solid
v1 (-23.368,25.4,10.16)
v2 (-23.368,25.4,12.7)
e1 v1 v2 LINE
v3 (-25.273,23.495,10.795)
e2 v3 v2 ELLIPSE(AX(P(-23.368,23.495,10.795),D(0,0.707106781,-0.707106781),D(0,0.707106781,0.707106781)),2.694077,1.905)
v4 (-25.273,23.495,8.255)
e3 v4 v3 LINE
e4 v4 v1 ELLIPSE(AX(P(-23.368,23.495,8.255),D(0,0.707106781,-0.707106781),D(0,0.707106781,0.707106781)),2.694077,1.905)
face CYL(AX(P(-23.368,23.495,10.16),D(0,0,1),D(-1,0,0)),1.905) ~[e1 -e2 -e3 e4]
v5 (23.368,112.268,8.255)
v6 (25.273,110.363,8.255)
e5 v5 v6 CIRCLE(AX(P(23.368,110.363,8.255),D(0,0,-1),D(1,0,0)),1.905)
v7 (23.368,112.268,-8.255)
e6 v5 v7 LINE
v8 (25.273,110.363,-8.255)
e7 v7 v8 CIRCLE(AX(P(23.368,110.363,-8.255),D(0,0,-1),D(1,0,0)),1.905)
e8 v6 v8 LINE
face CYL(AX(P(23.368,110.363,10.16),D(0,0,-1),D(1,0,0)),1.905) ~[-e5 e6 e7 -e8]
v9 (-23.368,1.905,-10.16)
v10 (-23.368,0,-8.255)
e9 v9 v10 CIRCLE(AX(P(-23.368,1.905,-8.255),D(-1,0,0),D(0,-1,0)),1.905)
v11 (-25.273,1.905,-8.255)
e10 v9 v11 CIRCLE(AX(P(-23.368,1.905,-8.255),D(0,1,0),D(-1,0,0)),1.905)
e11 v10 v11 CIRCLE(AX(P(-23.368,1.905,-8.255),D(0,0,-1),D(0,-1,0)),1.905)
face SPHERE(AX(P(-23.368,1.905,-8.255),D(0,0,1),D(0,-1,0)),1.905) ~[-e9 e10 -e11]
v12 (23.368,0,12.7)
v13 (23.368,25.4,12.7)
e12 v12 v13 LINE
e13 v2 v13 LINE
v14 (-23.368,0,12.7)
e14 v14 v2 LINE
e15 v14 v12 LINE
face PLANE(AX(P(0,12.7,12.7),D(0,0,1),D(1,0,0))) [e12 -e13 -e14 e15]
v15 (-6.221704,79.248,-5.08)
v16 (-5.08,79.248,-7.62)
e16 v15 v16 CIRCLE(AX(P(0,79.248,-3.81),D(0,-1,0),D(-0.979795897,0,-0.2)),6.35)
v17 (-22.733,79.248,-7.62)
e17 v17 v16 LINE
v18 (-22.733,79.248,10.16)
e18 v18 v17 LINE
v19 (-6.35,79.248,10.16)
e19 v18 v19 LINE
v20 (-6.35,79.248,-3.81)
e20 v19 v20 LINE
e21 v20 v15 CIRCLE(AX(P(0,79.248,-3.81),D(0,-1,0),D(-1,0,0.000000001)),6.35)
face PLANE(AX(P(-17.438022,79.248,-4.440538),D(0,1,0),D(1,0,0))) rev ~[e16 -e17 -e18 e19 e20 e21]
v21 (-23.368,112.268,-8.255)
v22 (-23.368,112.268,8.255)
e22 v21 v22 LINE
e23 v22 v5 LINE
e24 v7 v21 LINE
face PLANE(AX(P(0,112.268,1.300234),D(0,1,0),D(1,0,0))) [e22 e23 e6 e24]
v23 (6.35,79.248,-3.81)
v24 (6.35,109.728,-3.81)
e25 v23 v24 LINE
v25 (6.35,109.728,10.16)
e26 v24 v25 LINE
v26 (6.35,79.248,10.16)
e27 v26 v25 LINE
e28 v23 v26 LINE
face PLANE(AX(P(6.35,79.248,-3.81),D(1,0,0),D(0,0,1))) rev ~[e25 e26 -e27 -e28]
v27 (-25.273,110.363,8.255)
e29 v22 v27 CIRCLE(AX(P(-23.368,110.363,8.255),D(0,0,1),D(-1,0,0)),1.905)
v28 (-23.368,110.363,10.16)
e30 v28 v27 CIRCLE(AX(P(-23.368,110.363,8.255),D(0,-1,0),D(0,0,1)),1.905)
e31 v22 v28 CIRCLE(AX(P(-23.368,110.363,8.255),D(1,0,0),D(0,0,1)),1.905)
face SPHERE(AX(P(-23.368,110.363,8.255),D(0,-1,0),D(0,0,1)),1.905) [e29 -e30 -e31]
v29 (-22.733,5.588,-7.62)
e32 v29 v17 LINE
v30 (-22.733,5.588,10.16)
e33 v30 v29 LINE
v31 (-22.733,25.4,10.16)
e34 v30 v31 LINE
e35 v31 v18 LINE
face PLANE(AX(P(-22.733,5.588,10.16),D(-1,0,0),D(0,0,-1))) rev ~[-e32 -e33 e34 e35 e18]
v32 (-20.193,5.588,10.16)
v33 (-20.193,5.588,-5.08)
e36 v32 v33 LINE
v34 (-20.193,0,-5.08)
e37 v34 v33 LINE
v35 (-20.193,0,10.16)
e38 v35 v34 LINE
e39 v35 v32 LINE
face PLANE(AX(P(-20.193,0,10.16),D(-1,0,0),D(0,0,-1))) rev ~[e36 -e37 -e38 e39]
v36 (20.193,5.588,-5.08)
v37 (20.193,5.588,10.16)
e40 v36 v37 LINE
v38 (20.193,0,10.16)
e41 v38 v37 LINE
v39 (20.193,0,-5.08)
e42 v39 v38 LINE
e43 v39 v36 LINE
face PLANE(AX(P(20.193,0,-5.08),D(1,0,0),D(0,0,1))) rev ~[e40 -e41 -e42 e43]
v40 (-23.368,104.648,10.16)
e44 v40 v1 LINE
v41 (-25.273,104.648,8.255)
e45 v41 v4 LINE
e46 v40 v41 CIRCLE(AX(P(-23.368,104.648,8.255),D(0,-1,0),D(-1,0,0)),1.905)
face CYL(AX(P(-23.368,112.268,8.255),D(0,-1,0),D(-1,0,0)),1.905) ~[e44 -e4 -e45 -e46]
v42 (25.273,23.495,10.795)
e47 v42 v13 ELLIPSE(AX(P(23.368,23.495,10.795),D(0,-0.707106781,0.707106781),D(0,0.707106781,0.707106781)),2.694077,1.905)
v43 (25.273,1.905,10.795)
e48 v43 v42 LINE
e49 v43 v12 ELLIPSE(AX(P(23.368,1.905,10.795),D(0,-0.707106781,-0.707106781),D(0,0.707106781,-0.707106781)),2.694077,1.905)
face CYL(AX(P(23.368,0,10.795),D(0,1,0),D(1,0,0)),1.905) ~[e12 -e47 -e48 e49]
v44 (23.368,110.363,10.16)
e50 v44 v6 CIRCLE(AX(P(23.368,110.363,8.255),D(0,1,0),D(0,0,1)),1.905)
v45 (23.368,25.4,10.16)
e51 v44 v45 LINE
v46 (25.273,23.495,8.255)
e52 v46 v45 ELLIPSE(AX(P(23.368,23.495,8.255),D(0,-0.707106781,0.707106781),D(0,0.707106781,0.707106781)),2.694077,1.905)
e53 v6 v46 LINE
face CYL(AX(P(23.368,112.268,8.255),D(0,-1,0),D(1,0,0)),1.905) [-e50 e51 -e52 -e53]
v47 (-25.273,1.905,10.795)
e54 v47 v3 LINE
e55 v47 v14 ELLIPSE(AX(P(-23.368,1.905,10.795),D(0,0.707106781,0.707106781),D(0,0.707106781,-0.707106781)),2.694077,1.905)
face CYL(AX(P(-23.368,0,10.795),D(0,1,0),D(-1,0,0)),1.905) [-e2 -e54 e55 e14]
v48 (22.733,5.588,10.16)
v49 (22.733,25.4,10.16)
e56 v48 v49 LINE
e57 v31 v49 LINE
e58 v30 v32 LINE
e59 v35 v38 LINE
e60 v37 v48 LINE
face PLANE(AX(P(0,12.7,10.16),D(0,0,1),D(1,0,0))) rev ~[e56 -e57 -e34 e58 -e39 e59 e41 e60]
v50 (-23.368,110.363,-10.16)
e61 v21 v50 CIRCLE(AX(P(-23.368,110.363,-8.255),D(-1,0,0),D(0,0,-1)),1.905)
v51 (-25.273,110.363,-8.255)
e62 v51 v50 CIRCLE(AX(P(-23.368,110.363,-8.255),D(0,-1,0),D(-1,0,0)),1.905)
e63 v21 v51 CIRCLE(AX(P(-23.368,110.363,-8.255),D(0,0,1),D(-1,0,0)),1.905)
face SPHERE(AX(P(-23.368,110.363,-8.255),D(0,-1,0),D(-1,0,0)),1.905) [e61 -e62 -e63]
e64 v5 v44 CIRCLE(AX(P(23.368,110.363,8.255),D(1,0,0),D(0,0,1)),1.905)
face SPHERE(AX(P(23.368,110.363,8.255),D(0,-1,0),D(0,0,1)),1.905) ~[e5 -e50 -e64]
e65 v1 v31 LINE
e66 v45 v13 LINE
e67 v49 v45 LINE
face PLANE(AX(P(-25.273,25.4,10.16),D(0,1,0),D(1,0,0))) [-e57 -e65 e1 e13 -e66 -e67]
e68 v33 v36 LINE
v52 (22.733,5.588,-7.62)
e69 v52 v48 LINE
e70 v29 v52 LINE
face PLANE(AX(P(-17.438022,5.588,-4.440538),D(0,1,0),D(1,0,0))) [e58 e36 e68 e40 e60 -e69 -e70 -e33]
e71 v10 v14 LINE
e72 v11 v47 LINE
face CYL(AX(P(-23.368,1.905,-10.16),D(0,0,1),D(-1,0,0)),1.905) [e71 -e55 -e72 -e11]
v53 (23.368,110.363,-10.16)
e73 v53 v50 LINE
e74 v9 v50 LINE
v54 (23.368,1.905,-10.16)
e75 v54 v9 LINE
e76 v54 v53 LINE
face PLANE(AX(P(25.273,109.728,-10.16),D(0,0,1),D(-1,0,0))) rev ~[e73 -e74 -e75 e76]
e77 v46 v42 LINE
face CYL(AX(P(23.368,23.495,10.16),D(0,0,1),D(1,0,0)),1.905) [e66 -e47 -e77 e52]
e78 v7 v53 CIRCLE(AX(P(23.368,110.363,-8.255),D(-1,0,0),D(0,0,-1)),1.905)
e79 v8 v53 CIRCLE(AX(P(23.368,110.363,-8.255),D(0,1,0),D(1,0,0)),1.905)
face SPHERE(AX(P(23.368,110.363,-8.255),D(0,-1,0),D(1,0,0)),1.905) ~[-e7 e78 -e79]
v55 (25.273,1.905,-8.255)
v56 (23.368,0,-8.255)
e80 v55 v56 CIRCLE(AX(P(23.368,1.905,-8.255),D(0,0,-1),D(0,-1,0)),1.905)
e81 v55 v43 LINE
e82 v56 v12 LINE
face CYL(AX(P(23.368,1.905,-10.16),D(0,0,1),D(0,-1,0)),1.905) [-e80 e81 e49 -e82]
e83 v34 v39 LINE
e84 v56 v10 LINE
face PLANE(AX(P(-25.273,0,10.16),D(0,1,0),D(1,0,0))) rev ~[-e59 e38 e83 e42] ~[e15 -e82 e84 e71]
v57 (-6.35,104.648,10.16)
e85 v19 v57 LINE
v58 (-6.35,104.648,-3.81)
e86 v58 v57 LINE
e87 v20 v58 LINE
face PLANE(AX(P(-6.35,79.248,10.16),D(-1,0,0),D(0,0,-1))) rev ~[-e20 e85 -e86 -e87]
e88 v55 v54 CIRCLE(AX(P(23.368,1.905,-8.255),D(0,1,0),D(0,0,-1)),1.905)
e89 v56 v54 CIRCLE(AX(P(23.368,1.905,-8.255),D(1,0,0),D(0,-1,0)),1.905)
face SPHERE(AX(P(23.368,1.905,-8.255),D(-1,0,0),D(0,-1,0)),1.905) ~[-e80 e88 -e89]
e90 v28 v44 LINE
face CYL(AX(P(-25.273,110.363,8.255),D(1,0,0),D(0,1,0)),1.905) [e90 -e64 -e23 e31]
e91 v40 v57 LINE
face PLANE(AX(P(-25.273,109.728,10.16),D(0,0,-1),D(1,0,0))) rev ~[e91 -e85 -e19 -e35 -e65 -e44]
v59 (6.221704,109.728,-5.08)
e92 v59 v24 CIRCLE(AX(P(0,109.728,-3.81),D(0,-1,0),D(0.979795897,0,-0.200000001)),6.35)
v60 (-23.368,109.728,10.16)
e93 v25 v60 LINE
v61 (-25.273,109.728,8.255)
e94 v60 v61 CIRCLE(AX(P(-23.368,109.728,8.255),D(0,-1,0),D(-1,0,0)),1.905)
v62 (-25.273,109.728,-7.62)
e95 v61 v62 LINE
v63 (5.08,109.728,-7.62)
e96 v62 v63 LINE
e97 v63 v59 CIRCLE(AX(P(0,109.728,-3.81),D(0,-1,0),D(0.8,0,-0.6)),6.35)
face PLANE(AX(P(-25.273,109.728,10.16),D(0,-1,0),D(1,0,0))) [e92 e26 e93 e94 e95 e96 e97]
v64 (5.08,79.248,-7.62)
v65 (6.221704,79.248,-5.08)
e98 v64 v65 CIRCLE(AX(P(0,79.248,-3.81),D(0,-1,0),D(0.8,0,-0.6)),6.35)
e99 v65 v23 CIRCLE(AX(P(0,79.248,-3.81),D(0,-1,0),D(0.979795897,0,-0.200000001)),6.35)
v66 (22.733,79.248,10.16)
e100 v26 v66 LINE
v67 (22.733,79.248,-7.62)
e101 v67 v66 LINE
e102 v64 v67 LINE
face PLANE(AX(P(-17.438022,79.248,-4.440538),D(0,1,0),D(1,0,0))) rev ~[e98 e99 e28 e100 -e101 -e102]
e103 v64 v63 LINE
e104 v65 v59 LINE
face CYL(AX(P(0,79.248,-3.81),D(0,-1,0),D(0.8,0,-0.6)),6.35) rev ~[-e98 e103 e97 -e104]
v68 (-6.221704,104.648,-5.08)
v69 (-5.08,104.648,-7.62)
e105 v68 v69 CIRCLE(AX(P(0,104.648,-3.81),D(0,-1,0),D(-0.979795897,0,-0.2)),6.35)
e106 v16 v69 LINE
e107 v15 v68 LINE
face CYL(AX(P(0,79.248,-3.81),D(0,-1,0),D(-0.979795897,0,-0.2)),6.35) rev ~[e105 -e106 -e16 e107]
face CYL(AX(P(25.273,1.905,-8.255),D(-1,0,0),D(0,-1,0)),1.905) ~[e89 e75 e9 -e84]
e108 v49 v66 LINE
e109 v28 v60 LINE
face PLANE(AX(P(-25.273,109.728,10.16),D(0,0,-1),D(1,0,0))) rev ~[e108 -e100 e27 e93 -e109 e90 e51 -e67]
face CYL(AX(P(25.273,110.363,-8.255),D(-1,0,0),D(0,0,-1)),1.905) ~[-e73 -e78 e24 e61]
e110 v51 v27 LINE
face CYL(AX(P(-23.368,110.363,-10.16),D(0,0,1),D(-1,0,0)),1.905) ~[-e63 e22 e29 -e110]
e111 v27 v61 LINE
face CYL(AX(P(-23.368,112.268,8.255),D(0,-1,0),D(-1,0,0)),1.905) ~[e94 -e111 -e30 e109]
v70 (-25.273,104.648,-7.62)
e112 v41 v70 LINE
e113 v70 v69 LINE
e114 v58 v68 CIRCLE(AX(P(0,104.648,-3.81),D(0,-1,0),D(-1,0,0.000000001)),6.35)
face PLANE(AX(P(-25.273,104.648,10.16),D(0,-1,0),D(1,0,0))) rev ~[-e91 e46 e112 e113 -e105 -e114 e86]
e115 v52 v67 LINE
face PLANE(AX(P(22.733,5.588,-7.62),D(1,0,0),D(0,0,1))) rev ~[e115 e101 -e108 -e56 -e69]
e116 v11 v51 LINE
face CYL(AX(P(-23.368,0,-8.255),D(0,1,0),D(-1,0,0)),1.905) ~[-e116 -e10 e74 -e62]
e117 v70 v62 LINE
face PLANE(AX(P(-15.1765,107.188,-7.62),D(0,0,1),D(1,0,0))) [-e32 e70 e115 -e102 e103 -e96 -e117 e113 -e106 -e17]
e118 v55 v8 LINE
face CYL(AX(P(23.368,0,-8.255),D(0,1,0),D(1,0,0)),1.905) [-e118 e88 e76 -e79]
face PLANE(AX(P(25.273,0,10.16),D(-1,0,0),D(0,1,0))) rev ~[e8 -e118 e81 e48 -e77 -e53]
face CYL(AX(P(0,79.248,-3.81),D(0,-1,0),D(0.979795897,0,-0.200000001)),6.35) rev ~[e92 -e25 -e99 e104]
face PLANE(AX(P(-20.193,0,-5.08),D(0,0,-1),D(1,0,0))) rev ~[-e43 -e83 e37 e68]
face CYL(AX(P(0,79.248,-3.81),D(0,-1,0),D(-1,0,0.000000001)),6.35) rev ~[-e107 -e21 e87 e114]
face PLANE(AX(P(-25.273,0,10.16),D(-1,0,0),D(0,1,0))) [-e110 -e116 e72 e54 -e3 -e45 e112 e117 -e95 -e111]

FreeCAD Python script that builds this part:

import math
import FreeCAD as App
import Part
import Sketcher
from FreeCAD import Vector
Q = App.Units.Quantity


def edges_at(feature, points):
    """Names of the edges that pass closest to the given points."""
    edges = feature.Shape.Edges
    near = lambda p: min(range(len(edges)), key=lambda i: edges[i].distToShape(Part.Vertex(*p))[0])
    return sorted({f"Edge{near(p) + 1}" for p in points})


def add_polygon(sketch, points):
    """Adds a closed chain of lines whose ends are joined by coincident constraints."""
    first, n = sketch.GeometryCount, len(points)
    for a, b in zip(points, points[1:] + points[:1]):
        sketch.addGeometry(Part.LineSegment(App.Vector(*a, 0), App.Vector(*b, 0)), False)
    for i in range(n):
        sketch.addConstraint(Sketcher.Constraint("Coincident", first + i, 2, first + (i + 1) % n, 1))

doc = App.newDocument("Part")
body = doc.addObject("PartDesign::Body", "Body")

# Sketch on XZ plane
sketch1 = body.newObject("Sketcher::SketchObject", "Sketch")
sketch1.AttachmentSupport = (doc.getObject("XZ_Plane"), [""])
sketch1.MapMode = "FlatFace"
add_polygon(sketch1, [(-20, -5), (20, -5), (20, 10), (25, 10), (25, -10), (-25, -10), (-25, 10), (-20, 10)])  # lines 0-7
sketch1.addConstraint([
    Sketcher.Constraint("Horizontal", 0),
    Sketcher.Constraint("Vertical", 1),
    Sketcher.Constraint("Horizontal", 2),
    Sketcher.Constraint("Vertical", 3),
    Sketcher.Constraint("Horizontal", 4),
    Sketcher.Constraint("Vertical", 5),
    Sketcher.Constraint("Horizontal", 6),
    Sketcher.Constraint("Vertical", 7),
    Sketcher.Constraint("Symmetric", 2, 2, 4, 2, -1, 1),
    Sketcher.Constraint("Symmetric", 1, 2, 6, 2, -2),
    Sketcher.Constraint("DistanceX", 2, 1, 2, 2, Q("0.2 in")),
    Sketcher.Constraint("DistanceY", 1, 1, 1, 2, Q("0.6 in")),
    Sketcher.Constraint("DistanceY", 3, 2, 3, 1, Q("0.8 in")),
    Sketcher.Constraint("DistanceX", 0, 1, 0, 2, Q("1.59 in")),
])
pad1 = body.newObject("PartDesign::Pad", "Pad")
pad1.Profile = sketch1
pad1.Length = Q("0.22 in")
pad1.Reversed = True

# Sketch on XZ plane
sketch2 = body.newObject("Sketcher::SketchObject", "Sketch001")
sketch2.AttachmentSupport = (doc.getObject("XZ_Plane"), [""])
sketch2.MapMode = "FlatFace"
sketch2.AttachmentOffset = App.Placement(Vector(0, 0, -0.22 * 25.4), App.Rotation())
add_polygon(sketch2, [(-22.7, 10.2), (-22.7, -7.6), (22.7, -7.6), (22.7, 10.2), (25.3, 10.2), (25.3, -10.2), (-25.3, -10.2), (-25.3, 10.2)])  # lines 0-7
sketch2.addConstraint([
    Sketcher.Constraint("Vertical", 0),
    Sketcher.Constraint("Horizontal", 1),
    Sketcher.Constraint("Vertical", 2),
    Sketcher.Constraint("Horizontal", 3),
    Sketcher.Constraint("Vertical", 4),
    Sketcher.Constraint("Horizontal", 5),
    Sketcher.Constraint("Vertical", 6),
    Sketcher.Constraint("Horizontal", 7),
    Sketcher.Constraint("Symmetric", 3, 2, 5, 2, -1, 1),
    Sketcher.Constraint("Symmetric", 2, 2, 7, 2, -2),
    Sketcher.Constraint("DistanceX", 3, 1, 3, 2, Q("0.1 in")),
    Sketcher.Constraint("DistanceY", 0, 2, 0, 1, Q("0.7 in")),
    Sketcher.Constraint("DistanceY", 4, 2, 4, 1, Q("0.8 in")),
    Sketcher.Constraint("DistanceX", 1, 1, 1, 2, Q("1.79 in")),
])
pad2 = body.newObject("PartDesign::Pad", "Pad001")
pad2.Profile = sketch2
pad2.Length = Q("2.9 in")
pad2.Reversed = True

# Sketch on XZ plane
sketch3 = body.newObject("Sketcher::SketchObject", "Sketch002")
sketch3.AttachmentSupport = (doc.getObject("XZ_Plane"), [""])
sketch3.MapMode = "FlatFace"
sketch3.AttachmentOffset = App.Placement(Vector(0, 0, -3.12 * 25.4), App.Rotation())
sketch3.addGeometry([
    Part.ArcOfCircle(Part.Circle(Vector(0, -3.8, 0), Vector(0, 0, 1), 6.3), math.radians(180), math.radians(191.54)),  # 0
    Part.ArcOfCircle(Part.Circle(Vector(0, -3.8, 0), Vector(0, 0, 1), 6.4), math.radians(-168), math.radians(-143)),  # 1
    Part.LineSegment(Vector(-5.1, -7.6, 0), Vector(5.1, -7.6, 0)),  # 2
    Part.ArcOfCircle(Part.Circle(Vector(0, -3.8, 0), Vector(0, 0, 1), 6.4), math.radians(-37), math.radians(-12)),  # 3
    Part.ArcOfCircle(Part.Circle(Vector(0, -3.8, 0), Vector(0, 0, 1), 6.3), math.radians(-11.54), math.radians(0)),  # 4
    Part.LineSegment(Vector(6.3, -3.8, 0), Vector(6.3, 10.2, 0)),  # 5
    Part.LineSegment(Vector(6.3, 10.2, 0), Vector(25.3, 10.2, 0)),  # 6
    Part.LineSegment(Vector(25.3, 10.2, 0), Vector(25.3, -10.2, 0)),  # 7
    Part.LineSegment(Vector(25.3, -10.2, 0), Vector(-25.3, -10.2, 0)),  # 8
    Part.LineSegment(Vector(-25.3, -10.2, 0), Vector(-25.3, 10.2, 0)),  # 9
    Part.LineSegment(Vector(-25.3, 10.2, 0), Vector(-6.3, 10.2, 0)),  # 10
    Part.LineSegment(Vector(-6.3, 10.2, 0), Vector(-6.3, -3.8, 0)),  # 11
], False)
sketch3.addConstraint([
    Sketcher.Constraint("Tangent", 0, 2, 1, 1),
    Sketcher.Constraint("Coincident", 1, 2, 2, 1),
    Sketcher.Constraint("Coincident", 2, 2, 3, 1),
    Sketcher.Constraint("Tangent", 3, 2, 4, 1),
    Sketcher.Constraint("Tangent", 4, 2, 5, 1),
    Sketcher.Constraint("Coincident", 5, 2, 6, 1),
    Sketcher.Constraint("Coincident", 6, 2, 7, 1),
    Sketcher.Constraint("Coincident", 7, 2, 8, 1),
    Sketcher.Constraint("Coincident", 8, 2, 9, 1),
    Sketcher.Constraint("Coincident", 9, 2, 10, 1),
    Sketcher.Constraint("Coincident", 10, 2, 11, 1),
    Sketcher.Constraint("Tangent", 11, 2, 0, 1),
    Sketcher.Constraint("Horizontal", 2),
    Sketcher.Constraint("Vertical", 5),
    Sketcher.Constraint("Horizontal", 6),
    Sketcher.Constraint("Vertical", 7),
    Sketcher.Constraint("Horizontal", 8),
    Sketcher.Constraint("Vertical", 9),
    Sketcher.Constraint("Horizontal", 10),
    Sketcher.Constraint("Vertical", 11),
    Sketcher.Constraint("Coincident", 3, 3, 0, 3),
    Sketcher.Constraint("Equal", 0, 1),
    Sketcher.Constraint("Equal", 1, 3),
    Sketcher.Constraint("Equal", 3, 4),
    Sketcher.Constraint("Symmetric", 6, 2, 8, 2, -1, 1),
    Sketcher.Constraint("Symmetric", 0, 2, 3, 2, -2),
    Sketcher.Constraint("Horizontal", 6, 2, 9, 2),
    Sketcher.Constraint("Radius", 0, Q("0.25 in")),
    Sketcher.Constraint("DistanceX", 2, 1, 2, 2, Q("0.4 in")),
    Sketcher.Constraint("DistanceY", 7, 2, 7, 1, Q("0.8 in")),
    Sketcher.Constraint("DistanceX", 8, 2, 8, 1, Q("1.99 in")),
    Sketcher.Constraint("DistanceY", 5, 1, 5, 2, Q("0.55 in")),
    Sketcher.Constraint("DistanceY", 0, 2, -1, 1, Q("0.2 in")),
])
pad3 = body.newObject("PartDesign::Pad", "Pad002")
pad3.Profile = sketch3
pad3.Length = Q("1.2 in")
pad3.Reversed = True

# Sketch on XZ plane
sketch4 = body.newObject("Sketcher::SketchObject", "Sketch003")
sketch4.AttachmentSupport = (doc.getObject("XZ_Plane"), [""])
sketch4.MapMode = "FlatFace"
sketch4.AttachmentOffset = App.Placement(Vector(0, 0, -4.32 * 25.4), App.Rotation())
add_polygon(sketch4, [(25, 10), (25, -10), (-25, -10), (-25, 10)])  # lines 0-3
sketch4.addConstraint([
    Sketcher.Constraint("Vertical", 0),
    Sketcher.Constraint("Horizontal", 1),
    Sketcher.Constraint("Vertical", 2),
    Sketcher.Constraint("Horizontal", 3),
    Sketcher.Constraint("Symmetric", 0, 2, 2, 2, -1, 1),
    Sketcher.Constraint("DistanceY", 0, 2, 0, 1, Q("0.8 in")),
    Sketcher.Constraint("DistanceX", 1, 2, 1, 1, Q("1.99 in")),
])
pad4 = body.newObject("PartDesign::Pad", "Pad003")
pad4.Profile = sketch4
pad4.Length = Q("0.1 in")
pad4.Reversed = True

# Sketch on XY plane
sketch5 = body.newObject("Sketcher::SketchObject", "Sketch004")
sketch5.AttachmentSupport = (doc.getObject("XY_Plane"), [""])
sketch5.MapMode = "FlatFace"
sketch5.AttachmentOffset = App.Placement(Vector(0, 0, 0.4 * 25.4), App.Rotation())
add_polygon(sketch5, [(-25, 25), (-25, 0), (25, 0), (25, 25)])  # lines 0-3
sketch5.addConstraint([
    Sketcher.Constraint("Vertical", 0),
    Sketcher.Constraint("Horizontal", 1),
    Sketcher.Constraint("Vertical", 2),
    Sketcher.Constraint("Horizontal", 3),
    Sketcher.Constraint("Symmetric", 0, 2, 1, 2, -1, 1),
    Sketcher.Constraint("DistanceY", 0, 2, 0, 1, Q("1 in")),
    Sketcher.Constraint("DistanceX", 1, 1, 1, 2, Q("1.99 in")),
])
pad5 = body.newObject("PartDesign::Pad", "Pad004")
pad5.Profile = sketch5
pad5.Length = Q("0.1 in")
doc.recompute()

fillet = body.newObject("PartDesign::Fillet", "Fillet")
fillet.Base = (pad5, edges_at(pad5, [
    (-25.273, 25.4, 11.43),
    (25.273, 25.4, 11.43),
    (-25.273, 12.7, 12.7),
    (25.273, 12.7, 12.7),
    (-25.273, 0, 1.27),
    (0, 0, -10.16),
    (25.273, 0, 1.27),
    (-25.273, 68.834, 10.16),
    (-25.273, 56.134, -10.16),
    (25.273, 56.134, -10.16),
    (25.273, 68.834, 10.16),
    (0, 112.268, 10.16),
    (25.273, 112.268, 0),
    (-25.273, 112.268, 0),
    (0, 112.268, -10.16),
]))
fillet.Radius = Q("0.075 in")

# Sketch on XY plane
sketch6 = body.newObject("Sketcher::SketchObject", "Sketch005")
sketch6.AttachmentSupport = (doc.getObject("XY_Plane"), [""])
sketch6.MapMode = "FlatFace"
sketch6.AttachmentOffset = App.Placement(Vector(0, 0, 0.4 * 25.4), App.Rotation())
add_polygon(sketch6, [(-25, 110), (-25, 105), (-5, 105), (-5, 110)])  # lines 0-3
sketch6.addConstraint([
    Sketcher.Constraint("Vertical", 0),
    Sketcher.Constraint("Horizontal", 1),
    Sketcher.Constraint("Vertical", 2),
    Sketcher.Constraint("Horizontal", 3),
    Sketcher.Constraint("DistanceY", 0, 2, 0, 1, Q("0.2 in")),
    Sketcher.Constraint("DistanceX", 1, 2, -1, 1, Q("0.2 in")),
    Sketcher.Constraint("DistanceX", 1, 1, 1, 2, Q("0.795 in")),
    Sketcher.Constraint("DistanceY", -1, 1, 0, 2, Q("4.12 in")),
])
pocket1 = body.newObject("PartDesign::Pocket", "Pocket")
pocket1.Profile = sketch6
pocket1.Length = Q("0.7 in")

doc.recompute()
